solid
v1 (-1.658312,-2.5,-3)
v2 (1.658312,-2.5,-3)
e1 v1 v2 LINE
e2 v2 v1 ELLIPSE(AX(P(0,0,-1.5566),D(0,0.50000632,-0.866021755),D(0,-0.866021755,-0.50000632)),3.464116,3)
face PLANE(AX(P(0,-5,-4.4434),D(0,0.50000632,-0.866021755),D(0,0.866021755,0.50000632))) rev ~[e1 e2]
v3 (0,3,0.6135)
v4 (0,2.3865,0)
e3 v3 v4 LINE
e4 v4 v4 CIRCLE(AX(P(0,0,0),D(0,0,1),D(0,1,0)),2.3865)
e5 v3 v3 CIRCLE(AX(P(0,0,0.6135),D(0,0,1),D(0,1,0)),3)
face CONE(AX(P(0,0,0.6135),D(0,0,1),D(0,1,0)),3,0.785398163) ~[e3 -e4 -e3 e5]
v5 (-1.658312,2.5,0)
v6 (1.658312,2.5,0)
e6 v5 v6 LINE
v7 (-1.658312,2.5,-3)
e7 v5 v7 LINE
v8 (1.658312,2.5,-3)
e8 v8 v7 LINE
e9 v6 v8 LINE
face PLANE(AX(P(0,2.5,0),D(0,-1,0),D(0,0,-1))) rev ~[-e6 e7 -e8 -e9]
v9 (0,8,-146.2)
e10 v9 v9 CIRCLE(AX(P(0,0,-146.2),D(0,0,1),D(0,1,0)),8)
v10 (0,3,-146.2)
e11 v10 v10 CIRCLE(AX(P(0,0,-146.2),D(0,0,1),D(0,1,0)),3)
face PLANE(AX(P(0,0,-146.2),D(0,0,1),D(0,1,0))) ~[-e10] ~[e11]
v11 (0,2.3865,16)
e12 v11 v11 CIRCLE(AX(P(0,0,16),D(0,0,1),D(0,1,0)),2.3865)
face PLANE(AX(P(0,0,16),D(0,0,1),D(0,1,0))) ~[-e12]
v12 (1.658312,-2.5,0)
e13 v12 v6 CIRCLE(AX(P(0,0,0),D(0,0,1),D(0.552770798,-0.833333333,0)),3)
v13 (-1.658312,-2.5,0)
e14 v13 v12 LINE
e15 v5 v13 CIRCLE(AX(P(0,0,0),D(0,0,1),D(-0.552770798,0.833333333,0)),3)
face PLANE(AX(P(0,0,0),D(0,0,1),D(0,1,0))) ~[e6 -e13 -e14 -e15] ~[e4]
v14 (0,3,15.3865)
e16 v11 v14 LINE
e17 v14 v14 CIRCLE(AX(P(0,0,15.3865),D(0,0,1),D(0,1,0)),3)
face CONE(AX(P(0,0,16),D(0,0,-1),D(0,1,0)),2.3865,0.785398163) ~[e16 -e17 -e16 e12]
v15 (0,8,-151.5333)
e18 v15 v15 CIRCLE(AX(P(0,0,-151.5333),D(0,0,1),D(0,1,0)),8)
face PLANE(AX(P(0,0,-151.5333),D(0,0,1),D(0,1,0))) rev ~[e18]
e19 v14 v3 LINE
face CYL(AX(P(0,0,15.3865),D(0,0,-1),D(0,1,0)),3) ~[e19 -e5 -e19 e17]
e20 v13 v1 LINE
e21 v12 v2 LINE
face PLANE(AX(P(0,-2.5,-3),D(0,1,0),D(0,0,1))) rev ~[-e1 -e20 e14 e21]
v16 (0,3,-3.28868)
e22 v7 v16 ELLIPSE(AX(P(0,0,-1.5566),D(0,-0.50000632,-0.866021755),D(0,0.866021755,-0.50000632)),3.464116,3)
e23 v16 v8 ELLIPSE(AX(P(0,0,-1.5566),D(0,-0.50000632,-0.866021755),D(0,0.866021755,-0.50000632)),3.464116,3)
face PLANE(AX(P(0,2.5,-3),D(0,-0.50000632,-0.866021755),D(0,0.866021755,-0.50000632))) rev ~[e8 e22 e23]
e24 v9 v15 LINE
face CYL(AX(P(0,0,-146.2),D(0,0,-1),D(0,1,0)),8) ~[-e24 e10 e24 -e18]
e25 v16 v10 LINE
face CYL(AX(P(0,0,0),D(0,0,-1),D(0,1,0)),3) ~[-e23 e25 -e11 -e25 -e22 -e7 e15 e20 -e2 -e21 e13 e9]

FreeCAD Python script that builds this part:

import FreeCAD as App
import Part
import Sketcher

V = App.Vector
Q = App.Units.Quantity


def add_polygon(sketch, points):
    """Adds a closed chain of lines whose ends are joined by coincident constraints."""
    first, n = sketch.GeometryCount, len(points)
    for a, b in zip(points, points[1:] + points[:1]):
        sketch.addGeometry(Part.LineSegment(App.Vector(*a, 0), App.Vector(*b, 0)), False)
    for i in range(n):
        sketch.addConstraint(Sketcher.Constraint("Coincident", first + i, 2, first + (i + 1) % n, 1))

doc = App.newDocument("Part")
body = doc.addObject("PartDesign::Body", "Body")

sketch1 = body.newObject("Sketcher::SketchObject", "Sketch")
sketch1.AttachmentSupport = (doc.getObject("YZ_Plane"), [""])
sketch1.MapMode = "FlatFace"
add_polygon(sketch1, [(3, 0), (0, 0), (0, -151.5333), (8, -151.5333), (8, -146.2), (3, -146.2)])
sketch1.addConstraint([
    Sketcher.Constraint("Horizontal", 0),
    Sketcher.Constraint("Vertical", 1),
    Sketcher.Constraint("Horizontal", 2),
    Sketcher.Constraint("Vertical", 3),
    Sketcher.Constraint("Horizontal", 4),
    Sketcher.Constraint("Vertical", 5),
    Sketcher.Constraint("Coincident", 0, 2, -1, 1),
    Sketcher.Constraint("DistanceX", 0, 2, 0, 1, Q("3 mm")),
    Sketcher.Constraint("DistanceX", 2, 1, 2, 2, Q("8 mm")),
    Sketcher.Constraint("DistanceY", 5, 1, 5, 2, Q("146.2 mm")),
    Sketcher.Constraint("DistanceY", 1, 2, 1, 1, Q("151.5333 mm")),
])
revolution = body.newObject("PartDesign::Revolution", "Revolution")
revolution.Profile = sketch1
revolution.ReferenceAxis = (sketch1, ["V_Axis"])
revolution.Angle = 360

sketch2 = body.newObject("Sketcher::SketchObject", "Sketch001")
sketch2.AttachmentSupport = (doc.getObject("YZ_Plane"), [""])
sketch2.MapMode = "FlatFace"
add_polygon(sketch2, [(5, -4.4434), (5, 2), (-5, 2), (-5, -4.4434), (-2.5, -3), (-2.5, 0), (2.5, 0), (2.5, -3)])
sketch2.addConstraint([
    Sketcher.Constraint("Vertical", 0),
    Sketcher.Constraint("Horizontal", 1),
    Sketcher.Constraint("Vertical", 2),
    Sketcher.Constraint("Vertical", 4),
    Sketcher.Constraint("Horizontal", 5),
    Sketcher.Constraint("Vertical", 6),
    Sketcher.Constraint("Symmetric", 4, 2, 5, 2, -1, 1),
    Sketcher.Constraint("Symmetric", 2, 2, 7, 2, -2),
    Sketcher.Constraint("Horizontal", 3, 2, 6, 2),
    Sketcher.Constraint("DistanceX", 1, 2, 1, 1, Q("10 mm")),
    Sketcher.Constraint("DistanceX", 5, 1, 5, 2, Q("5 mm")),
    Sketcher.Constraint("DistanceY", 4, 1, 4, 2, Q("3 mm")),
    Sketcher.Constraint("Angle", 3, Q("30.0004 deg")),
    Sketcher.Constraint("DistanceY", -1, 1, 0, 2, Q("2 mm")),
])
pocket1 = body.newObject("PartDesign::Pocket", "Pocket")
pocket1.Profile = sketch2
pocket1.Type = "ThroughAll"
pocket1.Midplane = True

sketch3 = body.newObject("Sketcher::SketchObject", "Sketch002")
sketch3.AttachmentSupport = (doc.getObject("YZ_Plane"), [""])
sketch3.MapMode = "FlatFace"
add_polygon(sketch3, [(2.3865, 16), (0, 16), (0, 0), (2.3865, 0), (3, 0.6135), (3, 15.3865)])
sketch3.addConstraint([
    Sketcher.Constraint("Horizontal", 0),
    Sketcher.Constraint("Vertical", 1),
    Sketcher.Constraint("Horizontal", 2),
    Sketcher.Constraint("Vertical", 4),
    Sketcher.Constraint("Coincident", 1, 2, -1, 1),
    Sketcher.Constraint("Perpendicular", 3, 5),
    Sketcher.Constraint("Vertical", 2, 2, 5, 2),
    Sketcher.Constraint("Equal", 3, 5),
    Sketcher.Constraint("DistanceY", 1, 2, 1, 1, Q("16 mm")),
    Sketcher.Constraint("DistanceX", -1, 1, 3, 2, Q("3 mm")),
    Sketcher.Constraint("DistanceY", 4, 1, 4, 2, Q("14.773 mm")),
])
revolution2 = body.newObject("PartDesign::Revolution", "Revolution001")
revolution2.Profile = sketch3
revolution2.ReferenceAxis = (sketch3, ["V_Axis"])
revolution2.Angle = 360

doc.recompute()
